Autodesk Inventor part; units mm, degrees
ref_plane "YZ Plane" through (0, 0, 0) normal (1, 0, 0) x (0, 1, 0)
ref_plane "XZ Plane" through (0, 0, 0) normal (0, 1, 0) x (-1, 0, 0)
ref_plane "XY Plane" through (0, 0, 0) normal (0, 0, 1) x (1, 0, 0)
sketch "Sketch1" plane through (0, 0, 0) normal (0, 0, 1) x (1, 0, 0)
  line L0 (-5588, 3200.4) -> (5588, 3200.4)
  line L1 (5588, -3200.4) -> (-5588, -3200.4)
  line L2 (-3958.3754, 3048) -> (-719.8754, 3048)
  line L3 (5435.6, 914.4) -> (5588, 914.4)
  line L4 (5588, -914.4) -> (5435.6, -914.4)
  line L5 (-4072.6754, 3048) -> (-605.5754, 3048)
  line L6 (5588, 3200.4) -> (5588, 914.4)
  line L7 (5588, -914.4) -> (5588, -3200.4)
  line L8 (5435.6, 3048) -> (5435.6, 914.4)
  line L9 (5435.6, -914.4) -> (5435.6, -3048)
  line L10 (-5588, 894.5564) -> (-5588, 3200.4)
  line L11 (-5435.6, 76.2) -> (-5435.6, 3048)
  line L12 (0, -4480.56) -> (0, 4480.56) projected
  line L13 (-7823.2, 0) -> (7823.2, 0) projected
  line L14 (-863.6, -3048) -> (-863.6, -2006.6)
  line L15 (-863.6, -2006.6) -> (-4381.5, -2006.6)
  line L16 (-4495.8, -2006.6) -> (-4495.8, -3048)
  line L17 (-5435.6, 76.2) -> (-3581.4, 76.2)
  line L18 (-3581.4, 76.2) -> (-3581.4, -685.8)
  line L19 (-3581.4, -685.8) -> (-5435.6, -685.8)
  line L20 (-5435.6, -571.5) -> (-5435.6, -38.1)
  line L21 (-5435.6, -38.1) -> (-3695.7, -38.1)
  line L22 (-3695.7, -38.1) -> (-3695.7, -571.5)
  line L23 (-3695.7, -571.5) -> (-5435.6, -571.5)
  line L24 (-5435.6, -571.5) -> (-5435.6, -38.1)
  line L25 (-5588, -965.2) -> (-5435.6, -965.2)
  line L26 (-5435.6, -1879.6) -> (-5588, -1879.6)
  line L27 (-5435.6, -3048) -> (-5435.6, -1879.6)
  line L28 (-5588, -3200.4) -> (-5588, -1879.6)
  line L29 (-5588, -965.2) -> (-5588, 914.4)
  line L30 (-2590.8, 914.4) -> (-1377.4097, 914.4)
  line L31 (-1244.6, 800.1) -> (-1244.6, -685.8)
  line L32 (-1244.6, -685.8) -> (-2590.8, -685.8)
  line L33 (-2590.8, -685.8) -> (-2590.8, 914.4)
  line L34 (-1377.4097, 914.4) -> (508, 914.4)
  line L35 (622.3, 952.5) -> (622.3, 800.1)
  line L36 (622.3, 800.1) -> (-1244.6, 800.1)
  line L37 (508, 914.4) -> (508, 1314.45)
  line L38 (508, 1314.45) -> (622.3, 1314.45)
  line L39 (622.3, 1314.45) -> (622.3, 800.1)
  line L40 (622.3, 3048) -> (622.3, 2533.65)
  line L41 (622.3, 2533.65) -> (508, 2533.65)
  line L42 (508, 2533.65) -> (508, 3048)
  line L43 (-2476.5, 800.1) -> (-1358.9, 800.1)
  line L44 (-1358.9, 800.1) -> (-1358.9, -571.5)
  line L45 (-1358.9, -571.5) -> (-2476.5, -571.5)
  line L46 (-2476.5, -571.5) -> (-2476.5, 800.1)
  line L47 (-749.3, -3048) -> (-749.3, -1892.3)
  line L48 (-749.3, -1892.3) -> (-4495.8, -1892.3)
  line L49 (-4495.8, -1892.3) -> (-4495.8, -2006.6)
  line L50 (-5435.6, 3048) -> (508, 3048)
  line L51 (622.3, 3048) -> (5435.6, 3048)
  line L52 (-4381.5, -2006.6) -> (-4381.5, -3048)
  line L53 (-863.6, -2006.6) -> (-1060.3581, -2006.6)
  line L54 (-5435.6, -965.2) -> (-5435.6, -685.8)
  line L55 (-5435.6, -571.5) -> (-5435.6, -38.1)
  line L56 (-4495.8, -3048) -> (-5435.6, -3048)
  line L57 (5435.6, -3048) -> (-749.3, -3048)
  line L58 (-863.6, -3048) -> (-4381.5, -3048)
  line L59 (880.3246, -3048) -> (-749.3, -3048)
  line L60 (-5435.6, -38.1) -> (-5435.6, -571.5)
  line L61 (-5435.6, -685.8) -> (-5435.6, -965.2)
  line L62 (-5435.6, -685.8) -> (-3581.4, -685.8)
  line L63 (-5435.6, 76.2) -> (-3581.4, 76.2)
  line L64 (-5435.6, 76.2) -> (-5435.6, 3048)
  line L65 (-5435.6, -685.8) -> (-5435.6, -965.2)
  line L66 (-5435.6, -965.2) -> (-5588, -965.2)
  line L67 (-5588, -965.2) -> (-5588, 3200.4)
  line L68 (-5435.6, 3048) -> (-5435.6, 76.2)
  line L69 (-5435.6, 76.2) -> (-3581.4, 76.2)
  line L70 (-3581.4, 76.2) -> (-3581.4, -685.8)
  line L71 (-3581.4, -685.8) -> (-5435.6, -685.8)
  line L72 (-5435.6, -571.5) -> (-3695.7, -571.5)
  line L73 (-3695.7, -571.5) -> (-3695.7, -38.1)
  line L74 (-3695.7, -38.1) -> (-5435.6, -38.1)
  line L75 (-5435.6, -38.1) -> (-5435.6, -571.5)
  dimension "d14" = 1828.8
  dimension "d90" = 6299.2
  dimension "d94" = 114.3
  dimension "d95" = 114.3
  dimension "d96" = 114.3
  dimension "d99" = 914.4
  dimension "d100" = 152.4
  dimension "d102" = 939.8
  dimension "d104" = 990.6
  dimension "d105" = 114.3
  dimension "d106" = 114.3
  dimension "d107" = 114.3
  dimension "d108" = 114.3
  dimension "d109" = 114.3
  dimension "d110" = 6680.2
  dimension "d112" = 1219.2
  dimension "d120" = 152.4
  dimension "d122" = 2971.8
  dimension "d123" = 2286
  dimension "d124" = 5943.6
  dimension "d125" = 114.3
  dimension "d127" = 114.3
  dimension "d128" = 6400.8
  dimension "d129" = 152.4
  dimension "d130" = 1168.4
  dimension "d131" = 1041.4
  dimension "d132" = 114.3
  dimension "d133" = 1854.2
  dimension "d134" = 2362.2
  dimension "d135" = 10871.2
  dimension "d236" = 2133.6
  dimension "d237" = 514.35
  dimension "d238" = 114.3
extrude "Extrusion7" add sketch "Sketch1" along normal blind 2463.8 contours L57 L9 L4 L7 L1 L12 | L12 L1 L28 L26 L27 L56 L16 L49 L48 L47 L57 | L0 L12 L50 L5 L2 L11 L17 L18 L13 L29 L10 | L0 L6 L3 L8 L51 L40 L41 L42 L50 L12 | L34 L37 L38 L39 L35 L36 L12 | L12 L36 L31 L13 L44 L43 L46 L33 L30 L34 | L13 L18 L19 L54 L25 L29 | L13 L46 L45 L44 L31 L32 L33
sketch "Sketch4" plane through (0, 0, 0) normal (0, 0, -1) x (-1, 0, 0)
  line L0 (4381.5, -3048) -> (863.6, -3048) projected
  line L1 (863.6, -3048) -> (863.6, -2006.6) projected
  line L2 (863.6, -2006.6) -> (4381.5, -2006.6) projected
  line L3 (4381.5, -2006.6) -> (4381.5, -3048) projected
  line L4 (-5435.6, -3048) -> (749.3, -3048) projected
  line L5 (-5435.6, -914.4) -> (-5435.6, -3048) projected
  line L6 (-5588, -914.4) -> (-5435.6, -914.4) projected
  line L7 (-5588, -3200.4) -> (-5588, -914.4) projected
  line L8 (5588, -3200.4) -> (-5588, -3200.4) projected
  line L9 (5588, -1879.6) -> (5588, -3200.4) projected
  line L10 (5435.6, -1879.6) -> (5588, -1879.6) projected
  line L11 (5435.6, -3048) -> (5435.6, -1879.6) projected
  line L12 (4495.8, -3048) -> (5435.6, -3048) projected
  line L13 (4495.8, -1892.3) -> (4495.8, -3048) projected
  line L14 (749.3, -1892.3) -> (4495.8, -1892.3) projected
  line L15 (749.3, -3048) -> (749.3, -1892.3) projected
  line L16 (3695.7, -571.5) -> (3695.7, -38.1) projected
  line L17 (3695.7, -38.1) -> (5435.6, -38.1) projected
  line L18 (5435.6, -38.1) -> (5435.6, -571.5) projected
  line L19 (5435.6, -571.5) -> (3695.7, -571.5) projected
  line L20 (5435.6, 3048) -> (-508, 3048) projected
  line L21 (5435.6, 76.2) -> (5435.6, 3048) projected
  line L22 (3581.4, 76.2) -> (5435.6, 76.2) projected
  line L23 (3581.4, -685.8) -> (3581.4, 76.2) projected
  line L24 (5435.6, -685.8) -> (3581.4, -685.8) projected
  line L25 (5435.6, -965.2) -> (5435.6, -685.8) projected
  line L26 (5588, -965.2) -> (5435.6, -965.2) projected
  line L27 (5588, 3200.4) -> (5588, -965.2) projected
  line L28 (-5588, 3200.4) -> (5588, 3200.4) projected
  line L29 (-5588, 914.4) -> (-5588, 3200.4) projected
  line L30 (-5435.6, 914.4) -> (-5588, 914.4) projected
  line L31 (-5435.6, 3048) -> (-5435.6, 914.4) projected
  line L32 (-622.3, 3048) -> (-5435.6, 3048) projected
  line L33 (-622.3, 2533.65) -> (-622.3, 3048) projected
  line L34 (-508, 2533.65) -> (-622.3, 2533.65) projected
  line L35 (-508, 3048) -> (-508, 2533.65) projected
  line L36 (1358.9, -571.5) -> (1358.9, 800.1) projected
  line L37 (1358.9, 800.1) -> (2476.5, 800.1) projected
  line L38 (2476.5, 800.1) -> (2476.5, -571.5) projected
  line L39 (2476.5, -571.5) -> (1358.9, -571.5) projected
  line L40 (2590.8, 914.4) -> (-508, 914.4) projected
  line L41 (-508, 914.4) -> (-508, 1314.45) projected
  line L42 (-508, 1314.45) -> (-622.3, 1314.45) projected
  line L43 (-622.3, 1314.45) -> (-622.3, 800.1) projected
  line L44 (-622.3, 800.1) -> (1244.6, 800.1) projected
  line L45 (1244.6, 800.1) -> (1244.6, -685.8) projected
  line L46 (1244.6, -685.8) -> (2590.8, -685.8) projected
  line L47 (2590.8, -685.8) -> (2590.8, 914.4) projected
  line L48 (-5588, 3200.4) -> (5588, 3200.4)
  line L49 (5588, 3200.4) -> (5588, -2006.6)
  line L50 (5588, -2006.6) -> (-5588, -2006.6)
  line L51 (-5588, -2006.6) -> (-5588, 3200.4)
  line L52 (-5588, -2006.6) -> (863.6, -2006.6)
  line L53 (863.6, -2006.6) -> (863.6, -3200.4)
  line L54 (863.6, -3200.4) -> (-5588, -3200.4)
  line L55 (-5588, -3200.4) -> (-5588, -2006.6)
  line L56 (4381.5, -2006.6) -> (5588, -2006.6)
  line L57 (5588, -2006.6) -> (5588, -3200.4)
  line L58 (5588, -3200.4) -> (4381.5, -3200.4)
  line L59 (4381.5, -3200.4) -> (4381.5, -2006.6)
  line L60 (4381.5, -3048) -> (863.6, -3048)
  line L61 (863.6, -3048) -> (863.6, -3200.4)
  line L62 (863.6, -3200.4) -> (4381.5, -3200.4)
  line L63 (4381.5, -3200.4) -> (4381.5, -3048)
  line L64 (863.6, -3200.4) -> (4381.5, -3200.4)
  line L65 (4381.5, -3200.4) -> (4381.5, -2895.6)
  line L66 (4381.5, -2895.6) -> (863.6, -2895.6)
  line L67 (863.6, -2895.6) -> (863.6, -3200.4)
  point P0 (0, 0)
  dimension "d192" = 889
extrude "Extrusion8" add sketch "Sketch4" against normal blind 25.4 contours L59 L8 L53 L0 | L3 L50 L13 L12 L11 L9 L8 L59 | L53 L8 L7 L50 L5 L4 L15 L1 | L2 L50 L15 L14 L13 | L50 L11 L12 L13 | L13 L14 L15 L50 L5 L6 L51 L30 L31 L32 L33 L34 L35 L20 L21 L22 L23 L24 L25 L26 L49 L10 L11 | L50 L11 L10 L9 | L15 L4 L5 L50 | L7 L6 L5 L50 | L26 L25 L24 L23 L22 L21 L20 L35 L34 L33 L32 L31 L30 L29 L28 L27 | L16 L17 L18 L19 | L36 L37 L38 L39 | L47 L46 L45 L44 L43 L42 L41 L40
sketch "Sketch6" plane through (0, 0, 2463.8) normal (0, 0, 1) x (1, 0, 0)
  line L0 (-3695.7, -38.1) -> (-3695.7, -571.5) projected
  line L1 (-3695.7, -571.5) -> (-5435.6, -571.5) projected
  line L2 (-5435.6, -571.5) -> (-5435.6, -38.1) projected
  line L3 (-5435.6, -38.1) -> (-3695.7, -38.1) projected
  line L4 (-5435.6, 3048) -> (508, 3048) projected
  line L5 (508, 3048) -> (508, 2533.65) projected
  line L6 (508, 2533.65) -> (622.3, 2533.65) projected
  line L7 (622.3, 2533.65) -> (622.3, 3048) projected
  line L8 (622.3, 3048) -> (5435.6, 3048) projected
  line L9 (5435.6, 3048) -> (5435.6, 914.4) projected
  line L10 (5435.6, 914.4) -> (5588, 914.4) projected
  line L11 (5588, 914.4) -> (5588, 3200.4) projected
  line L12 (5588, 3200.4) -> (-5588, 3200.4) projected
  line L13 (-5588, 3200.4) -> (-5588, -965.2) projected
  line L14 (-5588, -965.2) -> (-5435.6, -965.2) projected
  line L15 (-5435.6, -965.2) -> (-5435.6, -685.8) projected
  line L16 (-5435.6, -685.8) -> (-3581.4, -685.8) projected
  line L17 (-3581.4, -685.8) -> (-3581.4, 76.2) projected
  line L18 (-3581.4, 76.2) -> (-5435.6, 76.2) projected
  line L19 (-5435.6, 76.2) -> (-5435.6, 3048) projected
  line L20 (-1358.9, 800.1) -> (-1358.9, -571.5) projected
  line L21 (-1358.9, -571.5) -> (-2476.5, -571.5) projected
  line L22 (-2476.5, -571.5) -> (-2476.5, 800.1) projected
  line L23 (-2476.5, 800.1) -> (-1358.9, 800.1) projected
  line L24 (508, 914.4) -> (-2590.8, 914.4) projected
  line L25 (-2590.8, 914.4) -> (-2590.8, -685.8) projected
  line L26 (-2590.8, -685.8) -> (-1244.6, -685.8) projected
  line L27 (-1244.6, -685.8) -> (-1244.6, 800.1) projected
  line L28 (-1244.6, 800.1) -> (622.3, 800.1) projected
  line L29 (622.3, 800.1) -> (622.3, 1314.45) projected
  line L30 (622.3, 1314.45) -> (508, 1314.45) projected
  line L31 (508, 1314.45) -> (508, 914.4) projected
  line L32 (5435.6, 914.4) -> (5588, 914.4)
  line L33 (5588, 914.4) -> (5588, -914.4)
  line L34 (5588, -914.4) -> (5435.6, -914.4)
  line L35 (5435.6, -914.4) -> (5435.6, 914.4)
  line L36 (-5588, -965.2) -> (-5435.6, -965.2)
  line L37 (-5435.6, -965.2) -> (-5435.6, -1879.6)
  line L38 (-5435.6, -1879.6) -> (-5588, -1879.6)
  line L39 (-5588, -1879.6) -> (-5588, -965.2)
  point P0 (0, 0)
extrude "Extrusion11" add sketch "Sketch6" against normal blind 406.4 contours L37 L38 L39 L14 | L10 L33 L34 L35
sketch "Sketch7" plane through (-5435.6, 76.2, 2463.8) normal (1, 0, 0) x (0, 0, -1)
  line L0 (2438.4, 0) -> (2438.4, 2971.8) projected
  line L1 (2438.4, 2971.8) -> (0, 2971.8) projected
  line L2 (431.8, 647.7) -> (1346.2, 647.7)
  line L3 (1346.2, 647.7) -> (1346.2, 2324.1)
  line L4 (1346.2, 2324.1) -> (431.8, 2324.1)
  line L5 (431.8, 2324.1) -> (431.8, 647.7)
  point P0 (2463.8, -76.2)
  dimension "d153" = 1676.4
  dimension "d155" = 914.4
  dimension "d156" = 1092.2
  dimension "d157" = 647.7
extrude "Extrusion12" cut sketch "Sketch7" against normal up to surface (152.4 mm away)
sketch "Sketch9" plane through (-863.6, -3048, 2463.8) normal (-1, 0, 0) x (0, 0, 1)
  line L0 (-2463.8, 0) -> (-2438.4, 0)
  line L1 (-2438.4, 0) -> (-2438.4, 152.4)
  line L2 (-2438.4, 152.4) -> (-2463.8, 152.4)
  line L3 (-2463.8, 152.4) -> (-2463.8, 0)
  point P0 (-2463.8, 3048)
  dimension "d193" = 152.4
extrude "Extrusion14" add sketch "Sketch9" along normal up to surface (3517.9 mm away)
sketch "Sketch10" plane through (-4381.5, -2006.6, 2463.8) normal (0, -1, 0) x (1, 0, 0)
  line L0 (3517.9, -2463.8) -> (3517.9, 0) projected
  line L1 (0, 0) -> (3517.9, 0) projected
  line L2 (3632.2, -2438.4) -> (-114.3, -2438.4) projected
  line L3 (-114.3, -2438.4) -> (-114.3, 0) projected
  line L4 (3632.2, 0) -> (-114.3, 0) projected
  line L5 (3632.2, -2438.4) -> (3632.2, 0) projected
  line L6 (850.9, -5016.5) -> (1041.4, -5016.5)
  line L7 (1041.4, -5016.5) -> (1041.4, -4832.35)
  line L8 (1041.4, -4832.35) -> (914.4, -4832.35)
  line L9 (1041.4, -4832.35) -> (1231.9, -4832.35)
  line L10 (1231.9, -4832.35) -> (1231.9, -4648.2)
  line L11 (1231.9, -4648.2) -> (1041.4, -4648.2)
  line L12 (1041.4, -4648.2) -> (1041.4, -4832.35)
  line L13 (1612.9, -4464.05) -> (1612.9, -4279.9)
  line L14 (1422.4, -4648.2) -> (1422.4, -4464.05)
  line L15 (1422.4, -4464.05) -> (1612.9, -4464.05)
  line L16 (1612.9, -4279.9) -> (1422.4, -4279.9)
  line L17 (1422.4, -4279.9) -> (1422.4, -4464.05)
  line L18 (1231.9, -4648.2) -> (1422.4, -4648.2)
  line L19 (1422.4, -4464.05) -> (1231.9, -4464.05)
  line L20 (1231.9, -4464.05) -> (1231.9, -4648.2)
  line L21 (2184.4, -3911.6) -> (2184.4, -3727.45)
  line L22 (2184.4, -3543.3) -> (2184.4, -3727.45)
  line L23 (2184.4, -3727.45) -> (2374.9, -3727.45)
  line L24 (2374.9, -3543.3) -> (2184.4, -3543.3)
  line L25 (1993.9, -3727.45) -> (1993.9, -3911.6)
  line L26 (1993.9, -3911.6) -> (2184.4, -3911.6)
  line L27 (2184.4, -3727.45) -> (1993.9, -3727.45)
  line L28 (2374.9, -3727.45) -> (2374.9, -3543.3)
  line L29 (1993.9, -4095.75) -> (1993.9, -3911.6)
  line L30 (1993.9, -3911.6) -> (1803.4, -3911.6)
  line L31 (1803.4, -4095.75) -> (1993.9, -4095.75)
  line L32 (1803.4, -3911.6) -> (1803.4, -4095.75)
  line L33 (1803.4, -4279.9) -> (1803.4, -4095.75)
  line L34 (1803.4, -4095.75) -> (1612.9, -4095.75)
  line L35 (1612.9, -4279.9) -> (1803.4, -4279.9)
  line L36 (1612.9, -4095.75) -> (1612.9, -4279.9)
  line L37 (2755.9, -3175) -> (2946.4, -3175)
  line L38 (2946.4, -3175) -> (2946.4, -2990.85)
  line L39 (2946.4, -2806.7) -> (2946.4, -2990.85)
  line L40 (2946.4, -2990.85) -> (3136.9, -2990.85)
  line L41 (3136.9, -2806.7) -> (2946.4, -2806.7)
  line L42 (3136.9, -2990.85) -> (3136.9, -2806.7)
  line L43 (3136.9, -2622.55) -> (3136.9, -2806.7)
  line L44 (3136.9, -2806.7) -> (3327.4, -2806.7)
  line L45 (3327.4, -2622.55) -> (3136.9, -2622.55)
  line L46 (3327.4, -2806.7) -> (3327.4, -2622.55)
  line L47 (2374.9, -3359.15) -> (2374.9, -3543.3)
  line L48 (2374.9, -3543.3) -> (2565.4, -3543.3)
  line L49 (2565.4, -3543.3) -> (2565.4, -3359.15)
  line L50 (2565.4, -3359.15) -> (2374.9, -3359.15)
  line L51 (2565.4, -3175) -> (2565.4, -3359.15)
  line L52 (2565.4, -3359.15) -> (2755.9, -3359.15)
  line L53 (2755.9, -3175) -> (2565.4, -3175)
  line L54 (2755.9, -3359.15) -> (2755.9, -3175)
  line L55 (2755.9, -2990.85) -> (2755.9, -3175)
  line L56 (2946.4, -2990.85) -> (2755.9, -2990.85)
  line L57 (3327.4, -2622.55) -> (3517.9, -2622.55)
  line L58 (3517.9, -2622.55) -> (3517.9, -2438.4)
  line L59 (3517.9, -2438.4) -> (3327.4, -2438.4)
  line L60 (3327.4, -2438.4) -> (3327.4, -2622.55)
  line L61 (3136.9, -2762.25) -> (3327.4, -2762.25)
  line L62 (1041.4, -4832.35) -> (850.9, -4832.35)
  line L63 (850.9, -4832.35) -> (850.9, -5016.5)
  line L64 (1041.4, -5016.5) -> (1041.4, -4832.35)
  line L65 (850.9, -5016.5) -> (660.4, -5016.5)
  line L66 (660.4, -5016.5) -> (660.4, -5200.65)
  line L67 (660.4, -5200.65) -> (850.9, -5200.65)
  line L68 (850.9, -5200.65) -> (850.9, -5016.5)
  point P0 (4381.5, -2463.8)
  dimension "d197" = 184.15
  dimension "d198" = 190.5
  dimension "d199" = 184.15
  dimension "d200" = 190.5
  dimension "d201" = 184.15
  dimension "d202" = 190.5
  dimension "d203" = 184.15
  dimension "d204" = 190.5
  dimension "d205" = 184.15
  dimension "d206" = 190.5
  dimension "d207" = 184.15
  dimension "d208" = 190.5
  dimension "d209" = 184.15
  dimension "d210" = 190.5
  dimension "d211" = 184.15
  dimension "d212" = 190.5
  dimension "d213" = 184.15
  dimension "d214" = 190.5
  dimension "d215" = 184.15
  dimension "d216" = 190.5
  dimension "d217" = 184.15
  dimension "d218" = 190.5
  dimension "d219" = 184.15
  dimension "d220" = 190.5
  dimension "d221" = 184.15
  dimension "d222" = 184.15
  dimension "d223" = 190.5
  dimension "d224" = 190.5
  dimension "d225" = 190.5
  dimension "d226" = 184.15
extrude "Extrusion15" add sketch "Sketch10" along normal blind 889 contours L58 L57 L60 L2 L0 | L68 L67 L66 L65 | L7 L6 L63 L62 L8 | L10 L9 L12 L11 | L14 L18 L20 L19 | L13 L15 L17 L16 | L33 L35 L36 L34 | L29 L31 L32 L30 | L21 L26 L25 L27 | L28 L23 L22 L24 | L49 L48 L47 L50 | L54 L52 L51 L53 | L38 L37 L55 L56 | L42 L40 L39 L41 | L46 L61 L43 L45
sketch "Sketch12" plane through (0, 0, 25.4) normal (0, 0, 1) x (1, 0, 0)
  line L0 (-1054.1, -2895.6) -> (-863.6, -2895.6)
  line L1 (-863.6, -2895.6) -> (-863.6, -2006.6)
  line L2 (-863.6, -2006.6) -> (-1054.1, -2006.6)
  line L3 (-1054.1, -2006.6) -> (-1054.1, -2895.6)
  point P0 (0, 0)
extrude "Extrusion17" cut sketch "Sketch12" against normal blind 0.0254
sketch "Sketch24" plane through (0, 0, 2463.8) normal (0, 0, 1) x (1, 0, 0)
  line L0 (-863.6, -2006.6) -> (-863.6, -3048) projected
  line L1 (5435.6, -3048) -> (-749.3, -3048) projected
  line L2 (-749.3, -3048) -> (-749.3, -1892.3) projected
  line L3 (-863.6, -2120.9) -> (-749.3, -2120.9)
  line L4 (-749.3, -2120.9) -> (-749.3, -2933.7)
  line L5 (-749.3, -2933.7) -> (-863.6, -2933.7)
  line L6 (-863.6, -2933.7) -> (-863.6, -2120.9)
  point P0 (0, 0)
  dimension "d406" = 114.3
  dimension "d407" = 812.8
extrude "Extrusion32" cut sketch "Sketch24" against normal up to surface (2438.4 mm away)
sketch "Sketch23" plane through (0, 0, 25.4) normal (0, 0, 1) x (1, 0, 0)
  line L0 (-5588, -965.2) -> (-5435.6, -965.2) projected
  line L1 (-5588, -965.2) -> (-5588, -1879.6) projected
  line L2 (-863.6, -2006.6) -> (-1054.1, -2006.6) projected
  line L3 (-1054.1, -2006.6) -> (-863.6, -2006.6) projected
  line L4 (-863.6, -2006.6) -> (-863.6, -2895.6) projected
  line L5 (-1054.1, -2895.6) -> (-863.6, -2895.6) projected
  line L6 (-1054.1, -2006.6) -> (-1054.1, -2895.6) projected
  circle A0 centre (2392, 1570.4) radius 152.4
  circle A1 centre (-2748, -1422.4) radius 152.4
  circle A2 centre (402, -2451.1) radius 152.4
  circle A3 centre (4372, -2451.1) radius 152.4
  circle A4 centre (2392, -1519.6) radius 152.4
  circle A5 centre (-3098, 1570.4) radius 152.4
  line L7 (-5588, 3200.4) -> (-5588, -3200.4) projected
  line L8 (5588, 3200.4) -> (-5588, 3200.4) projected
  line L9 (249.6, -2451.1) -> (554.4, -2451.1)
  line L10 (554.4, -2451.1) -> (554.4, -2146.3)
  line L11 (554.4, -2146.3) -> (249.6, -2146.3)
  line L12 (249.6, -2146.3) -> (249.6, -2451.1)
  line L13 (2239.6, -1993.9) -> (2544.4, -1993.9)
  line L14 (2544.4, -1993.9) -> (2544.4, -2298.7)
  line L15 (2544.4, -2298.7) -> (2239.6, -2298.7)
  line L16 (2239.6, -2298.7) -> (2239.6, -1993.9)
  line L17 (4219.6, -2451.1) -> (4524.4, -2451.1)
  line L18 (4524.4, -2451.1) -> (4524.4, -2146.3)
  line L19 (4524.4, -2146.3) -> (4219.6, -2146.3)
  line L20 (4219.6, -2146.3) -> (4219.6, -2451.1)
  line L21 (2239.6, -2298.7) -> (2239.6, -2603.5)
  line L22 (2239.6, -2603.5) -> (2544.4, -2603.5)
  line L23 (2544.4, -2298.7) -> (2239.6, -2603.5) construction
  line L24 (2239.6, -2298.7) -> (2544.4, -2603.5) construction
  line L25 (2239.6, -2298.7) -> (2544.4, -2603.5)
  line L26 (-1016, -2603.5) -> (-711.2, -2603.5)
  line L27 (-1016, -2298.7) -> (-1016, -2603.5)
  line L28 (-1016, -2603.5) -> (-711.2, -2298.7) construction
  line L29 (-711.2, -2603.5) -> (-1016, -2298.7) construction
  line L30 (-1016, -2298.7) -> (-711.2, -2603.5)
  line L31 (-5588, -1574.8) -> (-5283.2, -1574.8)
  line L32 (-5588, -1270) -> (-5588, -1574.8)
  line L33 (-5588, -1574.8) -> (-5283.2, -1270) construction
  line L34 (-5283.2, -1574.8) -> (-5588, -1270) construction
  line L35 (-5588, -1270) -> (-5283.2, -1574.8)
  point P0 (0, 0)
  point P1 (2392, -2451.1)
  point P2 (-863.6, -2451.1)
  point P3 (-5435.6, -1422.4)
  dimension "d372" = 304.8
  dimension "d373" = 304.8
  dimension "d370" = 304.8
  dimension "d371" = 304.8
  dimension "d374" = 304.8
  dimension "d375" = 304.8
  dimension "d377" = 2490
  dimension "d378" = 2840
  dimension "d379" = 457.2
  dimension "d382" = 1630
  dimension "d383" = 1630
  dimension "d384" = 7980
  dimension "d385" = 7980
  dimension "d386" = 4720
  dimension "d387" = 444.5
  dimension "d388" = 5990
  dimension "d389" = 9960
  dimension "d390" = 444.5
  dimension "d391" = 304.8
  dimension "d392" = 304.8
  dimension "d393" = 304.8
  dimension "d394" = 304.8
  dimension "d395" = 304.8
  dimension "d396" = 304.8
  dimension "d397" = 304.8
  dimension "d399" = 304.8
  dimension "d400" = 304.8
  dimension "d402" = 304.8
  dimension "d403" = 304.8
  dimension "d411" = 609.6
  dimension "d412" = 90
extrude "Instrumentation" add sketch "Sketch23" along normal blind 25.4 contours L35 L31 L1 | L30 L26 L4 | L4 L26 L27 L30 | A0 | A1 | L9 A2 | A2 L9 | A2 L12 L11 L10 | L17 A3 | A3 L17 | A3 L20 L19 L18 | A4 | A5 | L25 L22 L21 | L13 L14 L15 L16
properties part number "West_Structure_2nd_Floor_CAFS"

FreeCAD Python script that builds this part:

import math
import FreeCAD as App
import Part
import Sketcher
Q = App.Units.Quantity


def add_polygon(sketch, points):
    """Adds a closed chain of lines whose ends are joined by coincident constraints."""
    first, n = sketch.GeometryCount, len(points)
    for a, b in zip(points, points[1:] + points[:1]):
        sketch.addGeometry(Part.LineSegment(App.Vector(*a, 0), App.Vector(*b, 0)), False)
    for i in range(n):
        sketch.addConstraint(Sketcher.Constraint("Coincident", first + i, 2, first + (i + 1) % n, 1))

doc = App.newDocument("Part")
body = doc.addObject("PartDesign::Body", "Body")
body.AllowCompound = True

sketch1 = body.newObject("Sketcher::SketchObject", "Sketch")
sketch1.AttachmentSupport = (doc.getObject("XY_Plane"), [""])
sketch1.MapMode = "FlatFace"
add_polygon(sketch1, [(-749, -3048), (-749, -1892), (-4496, -1892), (-4496, -3048), (-5436, -3048), (-5436, -1880), (-5588, -1880), (-5588, -3200), (5588, -3200), (5588, -914), (5436, -914), (5436, -3048)])
add_polygon(sketch1, [(-864, -3048), (-4382, -3048), (-4382, -2007), (-864, -2007)])
add_polygon(sketch1, [(-5588, 3200), (-5588, -965), (-5436, -965), (-5436, -686), (-3581, -686), (-3581, 76), (-5436, 76), (-5436, 3048), (508, 3048), (508, 2534), (622, 2534), (622, 3048), (5436, 3048), (5436, 914), (5588, 914), (5588, 3200)])
add_polygon(sketch1, [(-5436, -572), (-5436, -38), (-3696, -38), (-3696, -572)])
add_polygon(sketch1, [(508, 914), (-2591, 914), (-2591, -686), (-1245, -686), (-1245, 800), (622, 800), (622, 1314), (508, 1314)])
add_polygon(sketch1, [(-1359, 800), (-1359, -572), (-2476, -572), (-2476, 800)])
sketch1.addConstraint(Sketcher.Constraint("Vertical", 0))
sketch1.addConstraint(Sketcher.Constraint("Horizontal", 1))
sketch1.addConstraint(Sketcher.Constraint("Vertical", 2))
sketch1.addConstraint(Sketcher.Constraint("Horizontal", 3))
sketch1.addConstraint(Sketcher.Constraint("Vertical", 4))
sketch1.addConstraint(Sketcher.Constraint("Horizontal", 5))
sketch1.addConstraint(Sketcher.Constraint("Vertical", 6))
sketch1.addConstraint(Sketcher.Constraint("Horizontal", 7))
sketch1.addConstraint(Sketcher.Constraint("Vertical", 8))
sketch1.addConstraint(Sketcher.Constraint("Horizontal", 9))
sketch1.addConstraint(Sketcher.Constraint("Vertical", 10))
sketch1.addConstraint(Sketcher.Constraint("Horizontal", 11))
sketch1.addConstraint(Sketcher.Constraint("Horizontal", 12))
sketch1.addConstraint(Sketcher.Constraint("Vertical", 13))
sketch1.addConstraint(Sketcher.Constraint("Horizontal", 14))
sketch1.addConstraint(Sketcher.Constraint("Vertical", 15))
sketch1.addConstraint(Sketcher.Constraint("Vertical", 16))
sketch1.addConstraint(Sketcher.Constraint("Horizontal", 17))
sketch1.addConstraint(Sketcher.Constraint("Vertical", 18))
sketch1.addConstraint(Sketcher.Constraint("Horizontal", 19))
sketch1.addConstraint(Sketcher.Constraint("Vertical", 20))
sketch1.addConstraint(Sketcher.Constraint("Horizontal", 21))
sketch1.addConstraint(Sketcher.Constraint("Vertical", 22))
sketch1.addConstraint(Sketcher.Constraint("Horizontal", 23))
sketch1.addConstraint(Sketcher.Constraint("Vertical", 24))
sketch1.addConstraint(Sketcher.Constraint("Horizontal", 25))
sketch1.addConstraint(Sketcher.Constraint("Vertical", 26))
sketch1.addConstraint(Sketcher.Constraint("Horizontal", 27))
sketch1.addConstraint(Sketcher.Constraint("Vertical", 28))
sketch1.addConstraint(Sketcher.Constraint("Horizontal", 29))
sketch1.addConstraint(Sketcher.Constraint("Vertical", 30))
sketch1.addConstraint(Sketcher.Constraint("Horizontal", 31))
sketch1.addConstraint(Sketcher.Constraint("Vertical", 32))
sketch1.addConstraint(Sketcher.Constraint("Horizontal", 33))
sketch1.addConstraint(Sketcher.Constraint("Vertical", 34))
sketch1.addConstraint(Sketcher.Constraint("Horizontal", 35))
sketch1.addConstraint(Sketcher.Constraint("Horizontal", 36))
sketch1.addConstraint(Sketcher.Constraint("Vertical", 37))
sketch1.addConstraint(Sketcher.Constraint("Horizontal", 38))
sketch1.addConstraint(Sketcher.Constraint("Vertical", 39))
sketch1.addConstraint(Sketcher.Constraint("Horizontal", 40))
sketch1.addConstraint(Sketcher.Constraint("Vertical", 41))
sketch1.addConstraint(Sketcher.Constraint("Horizontal", 42))
sketch1.addConstraint(Sketcher.Constraint("Vertical", 43))
sketch1.addConstraint(Sketcher.Constraint("Vertical", 44))
sketch1.addConstraint(Sketcher.Constraint("Horizontal", 45))
sketch1.addConstraint(Sketcher.Constraint("Vertical", 46))
sketch1.addConstraint(Sketcher.Constraint("Horizontal", 47))
sketch1.addConstraint(Sketcher.Constraint("Symmetric", 10, 2, 22, 2, -1, 1))
sketch1.addConstraint(Sketcher.Constraint("Symmetric", 3, 2, 27, 2, -1, 1))
sketch1.addConstraint(Sketcher.Constraint("Symmetric", 6, 2, 30, 2, -1, 1))
sketch1.addConstraint(Sketcher.Constraint("Symmetric", 3, 2, 10, 2, -2))
sketch1.addConstraint(Sketcher.Constraint("Symmetric", 8, 2, 29, 2, -1))
sketch1.addConstraint(Sketcher.Constraint("Horizontal", 11, 2, 12, 2))
sketch1.addConstraint(Sketcher.Constraint("Horizontal", 29, 2, 36, 2))
sketch1.addConstraint(Sketcher.Constraint("Horizontal", 19, 2, 37, 2))
sketch1.addConstraint(Sketcher.Constraint("Horizontal", 35, 2, 44, 2))
sketch1.addConstraint(Sketcher.Constraint("Horizontal", 40, 2, 46, 2))
sketch1.addConstraint(Sketcher.Constraint("Vertical", 6, 2, 16, 2))
sketch1.addConstraint(Sketcher.Constraint("Vertical", 4, 2, 17, 2))
sketch1.addConstraint(Sketcher.Constraint("Vertical", 22, 2, 32, 2))
sketch1.addConstraint(Sketcher.Constraint("Vertical", 26, 2, 40, 2))
sketch1.addConstraint(Sketcher.Constraint("Vertical", 24, 2, 42, 2))
sketch1.addConstraint(Sketcher.Constraint("Equal", 26, 41))
sketch1.addConstraint(Sketcher.Constraint("DistanceX", 3, 2, 3, 1, Q("37 in")))
sketch1.addConstraint(Sketcher.Constraint("DistanceX", 5, 2, 5, 1, Q("6 in")))
sketch1.addConstraint(Sketcher.Constraint("DistanceX", 19, 1, 19, 2, Q("73 in")))
sketch1.addConstraint(Sketcher.Constraint("DistanceX", 23, 1, 23, 2, Q("234 in")))
sketch1.addConstraint(Sketcher.Constraint("DistanceY", 4, 1, 4, 2, Q("46 in")))
sketch1.addConstraint(Sketcher.Constraint("DistanceY", 8, 1, 8, 2, Q("90 in")))
sketch1.addConstraint(Sketcher.Constraint("DistanceY", 10, 2, 10, 1, Q("84 in")))
sketch1.addConstraint(Sketcher.Constraint("DistanceY", 13, 1, 13, 2, Q("41 in")))
sketch1.addConstraint(Sketcher.Constraint("DistanceY", 22, 1, 22, 2, Q("117 in")))
sketch1.addConstraint(Sketcher.Constraint("DistanceX", 25, 1, 25, 2, Q("4.5 in")))
sketch1.addConstraint(Sketcher.Constraint("DistanceY", 8, 2, -1, 1, Q("36 in")))
sketch1.addConstraint(Sketcher.Constraint("DistanceY", 5, 2, 16, 2, Q("36 in")))
sketch1.addConstraint(Sketcher.Constraint("DistanceX", 20, 2, 36, 2, Q("39 in")))
sketch1.addConstraint(Sketcher.Constraint("DistanceY", 41, 2, 25, 2, Q("48 in")))
sketch1.addConstraint(Sketcher.Constraint("DistanceX", 34, 2, 45, 2, Q("48 in")))
sketch1.addConstraint(Sketcher.Constraint("DistanceY", 24, 2, 24, 1, Q("20.25 in")))
sketch1.addConstraint(Sketcher.Constraint("DistanceX", 2, 2, 12, 2, Q("4.5 in")))
sketch1.addConstraint(Sketcher.Constraint("DistanceY", 13, 2, 1, 2, Q("4.5 in")))
sketch1.addConstraint(Sketcher.Constraint("DistanceX", 14, 2, 0, 2, Q("4.5 in")))
sketch1.addConstraint(Sketcher.Constraint("DistanceY", 32, 2, 21, 2, Q("4.5 in")))
sketch1.addConstraint(Sketcher.Constraint("DistanceX", 33, 2, 20, 2, Q("4.5 in")))
sketch1.addConstraint(Sketcher.Constraint("DistanceY", 19, 2, 34, 2, Q("4.5 in")))
sketch1.addConstraint(Sketcher.Constraint("DistanceX", 44, 2, 38, 2, Q("4.5 in")))
sketch1.addConstraint(Sketcher.Constraint("DistanceX", 7, 1, 7, 2, Q("440 in")))
sketch1.addConstraint(Sketcher.Constraint("DistanceX", 38, 1, 38, 2, Q("53 in")))
sketch1.addConstraint(Sketcher.Constraint("DistanceY", 18, 1, 18, 2, Q("11 in")))
sketch1.addConstraint(Sketcher.Constraint("DistanceX", 1, 2, 1, 1, Q("147.5 in")))
pad1 = body.newObject("PartDesign::Pad", "Pad")
pad1.Profile = sketch1
pad1.Length = Q("97 in")

sketch2 = body.newObject("Sketcher::SketchObject", "Sketch001")
sketch2.AttachmentSupport = (doc.getObject("XY_Plane"), [""])
sketch2.MapMode = "FlatFace"
add_polygon(sketch2, [(-5588, -3200), (-5588, 3200), (5588, 3200), (5588, -3200)])
add_polygon(sketch2, [(-4382, -3048), (-864, -3048), (-864, -2007), (-4382, -2007)])
sketch2.addConstraint(Sketcher.Constraint("Vertical", 0))
sketch2.addConstraint(Sketcher.Constraint("Horizontal", 1))
sketch2.addConstraint(Sketcher.Constraint("Vertical", 2))
sketch2.addConstraint(Sketcher.Constraint("Horizontal", 3))
sketch2.addConstraint(Sketcher.Constraint("Horizontal", 4))
sketch2.addConstraint(Sketcher.Constraint("Vertical", 5))
sketch2.addConstraint(Sketcher.Constraint("Horizontal", 6))
sketch2.addConstraint(Sketcher.Constraint("Vertical", 7))
sketch2.addConstraint(Sketcher.Constraint("Symmetric", 0, 2, 2, 2, -1, 1))
sketch2.addConstraint(Sketcher.Constraint("DistanceX", 1, 1, 1, 2, Q("440 in")))
sketch2.addConstraint(Sketcher.Constraint("DistanceY", 0, 1, 0, 2, Q("252 in")))
sketch2.addConstraint(Sketcher.Constraint("DistanceY", 5, 1, 5, 2, Q("41 in")))
sketch2.addConstraint(Sketcher.Constraint("DistanceX", 4, 1, 4, 2, Q("138.5 in")))
sketch2.addConstraint(Sketcher.Constraint("DistanceX", 4, 2, -1, 1, Q("34 in")))
sketch2.addConstraint(Sketcher.Constraint("DistanceY", 4, 2, -1, 1, Q("120 in")))
pad2 = body.newObject("PartDesign::Pad", "Pad001")
pad2.Profile = sketch2
pad2.Length = Q("1 in")

sketch3 = body.newObject("Sketcher::SketchObject", "Sketch002")
sketch3.AttachmentSupport = (doc.getObject("XY_Plane"), [""])
sketch3.MapMode = "FlatFace"
sketch3.AttachmentOffset = App.Placement(App.Vector(0, 0, 97 * 25.4), App.Rotation())
add_polygon(sketch3, [(-5436, -1880), (-5436, -965), (-5588, -965), (-5588, -1880)])
add_polygon(sketch3, [(5588, 914), (5436, 914), (5436, -914), (5588, -914)])
sketch3.addConstraint(Sketcher.Constraint("Vertical", 0))
sketch3.addConstraint(Sketcher.Constraint("Horizontal", 1))
sketch3.addConstraint(Sketcher.Constraint("Vertical", 2))
sketch3.addConstraint(Sketcher.Constraint("Horizontal", 3))
sketch3.addConstraint(Sketcher.Constraint("Horizontal", 4))
sketch3.addConstraint(Sketcher.Constraint("Vertical", 5))
sketch3.addConstraint(Sketcher.Constraint("Horizontal", 6))
sketch3.addConstraint(Sketcher.Constraint("Vertical", 7))
sketch3.addConstraint(Sketcher.Constraint("Equal", 3, 4))
sketch3.addConstraint(Sketcher.Constraint("DistanceX", 1, 2, 1, 1, Q("6 in")))
sketch3.addConstraint(Sketcher.Constraint("DistanceY", 0, 1, 0, 2, Q("36 in")))
sketch3.addConstraint(Sketcher.Constraint("DistanceY", 5, 2, 5, 1, Q("72 in")))
sketch3.addConstraint(Sketcher.Constraint("DistanceX", 0, 2, -1, 1, Q("214 in")))
sketch3.addConstraint(Sketcher.Constraint("DistanceY", 0, 2, -1, 1, Q("38 in")))
sketch3.addConstraint(Sketcher.Constraint("DistanceX", -1, 1, 4, 2, Q("214 in")))
sketch3.addConstraint(Sketcher.Constraint("DistanceY", -1, 1, 4, 2, Q("36 in")))
pad3 = body.newObject("PartDesign::Pad", "Pad002")
pad3.Profile = sketch3
pad3.Length = Q("16 in")
pad3.Reversed = True

sketch4 = body.newObject("Sketcher::SketchObject", "Sketch003")
sketch4.AttachmentSupport = (doc.getObject("YZ_Plane"), [""])
sketch4.MapMode = "FlatFace"
sketch4.AttachmentOffset = App.Placement(App.Vector(0, 0, -214 * 25.4), App.Rotation())
add_polygon(sketch4, [(2400, 2032), (724, 2032), (724, 1118), (2400, 1118)])
sketch4.addConstraint(Sketcher.Constraint("Horizontal", 0))
sketch4.addConstraint(Sketcher.Constraint("Vertical", 1))
sketch4.addConstraint(Sketcher.Constraint("Horizontal", 2))
sketch4.addConstraint(Sketcher.Constraint("Vertical", 3))
sketch4.addConstraint(Sketcher.Constraint("DistanceX", 0, 2, 0, 1, Q("66 in")))
sketch4.addConstraint(Sketcher.Constraint("DistanceY", 1, 2, 1, 1, Q("36 in")))
sketch4.addConstraint(Sketcher.Constraint("DistanceY", -1, 1, 0, 2, Q("80 in")))
sketch4.addConstraint(Sketcher.Constraint("DistanceX", -1, 1, 0, 2, Q("28.5 in")))
pocket1 = body.newObject("PartDesign::Pocket", "Pocket")
pocket1.Profile = sketch4
pocket1.Length = Q("6 in")

sketch5 = body.newObject("Sketcher::SketchObject", "Sketch004")
sketch5.AttachmentSupport = (doc.getObject("YZ_Plane"), [""])
sketch5.MapMode = "FlatFace"
sketch5.AttachmentOffset = App.Placement(App.Vector(0, 0, -34 * 25.4), App.Rotation())
add_polygon(sketch5, [(-2896, 0), (-3048, 0), (-3048, 25), (-2896, 25)])
sketch5.addConstraint(Sketcher.Constraint("Horizontal", 0))
sketch5.addConstraint(Sketcher.Constraint("Vertical", 1))
sketch5.addConstraint(Sketcher.Constraint("Horizontal", 2))
sketch5.addConstraint(Sketcher.Constraint("Vertical", 3))
sketch5.addConstraint(Sketcher.Constraint("PointOnObject", 0, 2, -1))
sketch5.addConstraint(Sketcher.Constraint("DistanceX", 0, 2, 0, 1, Q("6 in")))
sketch5.addConstraint(Sketcher.Constraint("DistanceY", 1, 1, 1, 2, Q("1 in")))
sketch5.addConstraint(Sketcher.Constraint("DistanceX", 0, 2, -1, 1, Q("120 in")))
pad4 = body.newObject("PartDesign::Pad", "Pad003")
pad4.Profile = sketch5
pad4.Length = Q("138.5 in")
pad4.Reversed = True

sketch6 = body.newObject("Sketcher::SketchObject", "Sketch005")
sketch6.AttachmentSupport = (doc.getObject("XZ_Plane"), [""])
sketch6.MapMode = "FlatFace"
sketch6.AttachmentOffset = App.Placement(App.Vector(0, 0, 79 * 25.4), App.Rotation())
add_polygon(sketch6, [(-864, -159), (-864, 25), (-1054, 25), (-1054, -159)])
add_polygon(sketch6, [(-3531, -2737), (-3531, -2553), (-3721, -2553), (-3721, -2737)])
add_polygon(sketch6, [(-3340, -2553), (-3340, -2369), (-3531, -2369), (-3531, -2553)])
add_polygon(sketch6, [(-3150, -2369), (-3150, -2184), (-3340, -2184), (-3340, -2369)])
add_polygon(sketch6, [(-2959, -2184), (-2959, -2000), (-3150, -2000), (-3150, -2184)])
add_polygon(sketch6, [(-2769, -2000), (-2769, -1816), (-2959, -1816), (-2959, -2000)])
add_polygon(sketch6, [(-2578, -1816), (-2578, -1632), (-2769, -1632), (-2769, -1816)])
add_polygon(sketch6, [(-2388, -1632), (-2388, -1448), (-2578, -1448), (-2578, -1632)])
add_polygon(sketch6, [(-2197, -1448), (-2197, -1264), (-2388, -1264), (-2388, -1448)])
add_polygon(sketch6, [(-2007, -1264), (-2007, -1080), (-2197, -1080), (-2197, -1264)])
add_polygon(sketch6, [(-1816, -1080), (-1816, -895), (-2007, -895), (-2007, -1080)])
add_polygon(sketch6, [(-1626, -895), (-1626, -711), (-1816, -711), (-1816, -895)])
add_polygon(sketch6, [(-1435, -711), (-1435, -527), (-1626, -527), (-1626, -711)])
add_polygon(sketch6, [(-1245, -527), (-1245, -343), (-1435, -343), (-1435, -527)])
add_polygon(sketch6, [(-1054, -298), (-1054, -159), (-1245, -159), (-1245, -298)])
sketch6.addConstraint(Sketcher.Constraint("Vertical", 0))
sketch6.addConstraint(Sketcher.Constraint("Horizontal", 1))
sketch6.addConstraint(Sketcher.Constraint("Vertical", 2))
sketch6.addConstraint(Sketcher.Constraint("Horizontal", 3))
sketch6.addConstraint(Sketcher.Constraint("Vertical", 4))
sketch6.addConstraint(Sketcher.Constraint("Horizontal", 5))
sketch6.addConstraint(Sketcher.Constraint("Vertical", 6))
sketch6.addConstraint(Sketcher.Constraint("Horizontal", 7))
sketch6.addConstraint(Sketcher.Constraint("Vertical", 8))
sketch6.addConstraint(Sketcher.Constraint("Horizontal", 9))
sketch6.addConstraint(Sketcher.Constraint("Vertical", 10))
sketch6.addConstraint(Sketcher.Constraint("Horizontal", 11))
sketch6.addConstraint(Sketcher.Constraint("Vertical", 12))
sketch6.addConstraint(Sketcher.Constraint("Horizontal", 13))
sketch6.addConstraint(Sketcher.Constraint("Vertical", 14))
sketch6.addConstraint(Sketcher.Constraint("Horizontal", 15))
sketch6.addConstraint(Sketcher.Constraint("Vertical", 16))
sketch6.addConstraint(Sketcher.Constraint("Horizontal", 17))
sketch6.addConstraint(Sketcher.Constraint("Vertical", 18))
sketch6.addConstraint(Sketcher.Constraint("Horizontal", 19))
sketch6.addConstraint(Sketcher.Constraint("Vertical", 20))
sketch6.addConstraint(Sketcher.Constraint("Horizontal", 21))
sketch6.addConstraint(Sketcher.Constraint("Vertical", 22))
sketch6.addConstraint(Sketcher.Constraint("Horizontal", 23))
sketch6.addConstraint(Sketcher.Constraint("Vertical", 24))
sketch6.addConstraint(Sketcher.Constraint("Horizontal", 25))
sketch6.addConstraint(Sketcher.Constraint("Vertical", 26))
sketch6.addConstraint(Sketcher.Constraint("Horizontal", 27))
sketch6.addConstraint(Sketcher.Constraint("Vertical", 28))
sketch6.addConstraint(Sketcher.Constraint("Horizontal", 29))
sketch6.addConstraint(Sketcher.Constraint("Vertical", 30))
sketch6.addConstraint(Sketcher.Constraint("Horizontal", 31))
sketch6.addConstraint(Sketcher.Constraint("Vertical", 32))
sketch6.addConstraint(Sketcher.Constraint("Horizontal", 33))
sketch6.addConstraint(Sketcher.Constraint("Vertical", 34))
sketch6.addConstraint(Sketcher.Constraint("Horizontal", 35))
sketch6.addConstraint(Sketcher.Constraint("Vertical", 36))
sketch6.addConstraint(Sketcher.Constraint("Horizontal", 37))
sketch6.addConstraint(Sketcher.Constraint("Vertical", 38))
sketch6.addConstraint(Sketcher.Constraint("Horizontal", 39))
sketch6.addConstraint(Sketcher.Constraint("Vertical", 40))
sketch6.addConstraint(Sketcher.Constraint("Horizontal", 41))
sketch6.addConstraint(Sketcher.Constraint("Vertical", 42))
sketch6.addConstraint(Sketcher.Constraint("Horizontal", 43))
sketch6.addConstraint(Sketcher.Constraint("Vertical", 44))
sketch6.addConstraint(Sketcher.Constraint("Horizontal", 45))
sketch6.addConstraint(Sketcher.Constraint("Vertical", 46))
sketch6.addConstraint(Sketcher.Constraint("Horizontal", 47))
sketch6.addConstraint(Sketcher.Constraint("Vertical", 48))
sketch6.addConstraint(Sketcher.Constraint("Horizontal", 49))
sketch6.addConstraint(Sketcher.Constraint("Vertical", 50))
sketch6.addConstraint(Sketcher.Constraint("Horizontal", 51))
sketch6.addConstraint(Sketcher.Constraint("Vertical", 52))
sketch6.addConstraint(Sketcher.Constraint("Horizontal", 53))
sketch6.addConstraint(Sketcher.Constraint("Vertical", 54))
sketch6.addConstraint(Sketcher.Constraint("Horizontal", 55))
sketch6.addConstraint(Sketcher.Constraint("Vertical", 56))
sketch6.addConstraint(Sketcher.Constraint("Horizontal", 57))
sketch6.addConstraint(Sketcher.Constraint("Vertical", 58))
sketch6.addConstraint(Sketcher.Constraint("Horizontal", 59))
sketch6.addConstraint(Sketcher.Constraint("Coincident", 10, 2, 4, 2))
sketch6.addConstraint(Sketcher.Constraint("Coincident", 14, 2, 8, 2))
sketch6.addConstraint(Sketcher.Constraint("Coincident", 18, 2, 12, 2))
sketch6.addConstraint(Sketcher.Constraint("Coincident", 22, 2, 16, 2))
sketch6.addConstraint(Sketcher.Constraint("Coincident", 26, 2, 20, 2))
sketch6.addConstraint(Sketcher.Constraint("Coincident", 30, 2, 24, 2))
sketch6.addConstraint(Sketcher.Constraint("Coincident", 34, 2, 28, 2))
sketch6.addConstraint(Sketcher.Constraint("Coincident", 38, 2, 32, 2))
sketch6.addConstraint(Sketcher.Constraint("Coincident", 42, 2, 36, 2))
sketch6.addConstraint(Sketcher.Constraint("Coincident", 46, 2, 40, 2))
sketch6.addConstraint(Sketcher.Constraint("Coincident", 50, 2, 44, 2))
sketch6.addConstraint(Sketcher.Constraint("Coincident", 54, 2, 48, 2))
sketch6.addConstraint(Sketcher.Constraint("Coincident", 56, 2, 2, 2))
sketch6.addConstraint(Sketcher.Constraint("Vertical", 55, 2, 57, 2))
sketch6.addConstraint(Sketcher.Constraint("Equal", 3, 5))
sketch6.addConstraint(Sketcher.Constraint("Equal", 7, 9))
sketch6.addConstraint(Sketcher.Constraint("Equal", 11, 13))
sketch6.addConstraint(Sketcher.Constraint("Equal", 15, 17))
sketch6.addConstraint(Sketcher.Constraint("Equal", 19, 21))
sketch6.addConstraint(Sketcher.Constraint("Equal", 23, 25))
sketch6.addConstraint(Sketcher.Constraint("Equal", 27, 29))
sketch6.addConstraint(Sketcher.Constraint("Equal", 31, 33))
sketch6.addConstraint(Sketcher.Constraint("Equal", 35, 37))
sketch6.addConstraint(Sketcher.Constraint("Equal", 39, 41))
sketch6.addConstraint(Sketcher.Constraint("Equal", 43, 45))
sketch6.addConstraint(Sketcher.Constraint("Equal", 47, 49))
sketch6.addConstraint(Sketcher.Constraint("Equal", 51, 53))
sketch6.addConstraint(Sketcher.Constraint("Equal", 55, 57))
sketch6.addConstraint(Sketcher.Constraint("Equal", 2, 4))
sketch6.addConstraint(Sketcher.Constraint("Equal", 6, 8))
sketch6.addConstraint(Sketcher.Constraint("Equal", 10, 12))
sketch6.addConstraint(Sketcher.Constraint("Equal", 14, 16))
sketch6.addConstraint(Sketcher.Constraint("Equal", 18, 20))
sketch6.addConstraint(Sketcher.Constraint("Equal", 22, 24))
sketch6.addConstraint(Sketcher.Constraint("Equal", 26, 28))
sketch6.addConstraint(Sketcher.Constraint("Equal", 30, 32))
sketch6.addConstraint(Sketcher.Constraint("Equal", 34, 36))
sketch6.addConstraint(Sketcher.Constraint("Equal", 38, 40))
sketch6.addConstraint(Sketcher.Constraint("Equal", 42, 44))
sketch6.addConstraint(Sketcher.Constraint("Equal", 46, 48))
sketch6.addConstraint(Sketcher.Constraint("Equal", 50, 52))
sketch6.addConstraint(Sketcher.Constraint("DistanceX", 1, 2, 1, 1, Q("7.5 in")))
sketch6.addConstraint(Sketcher.Constraint("DistanceY", 0, 1, 0, 2, Q("7.25 in")))
sketch6.addConstraint(Sketcher.Constraint("DistanceY", 52, 2, 2, 2, Q("7.25 in")))
sketch6.addConstraint(Sketcher.Constraint("DistanceY", 56, 1, 56, 2, Q("5.5 in")))
sketch6.addConstraint(Sketcher.Constraint("DistanceX", 0, 2, -1, 1, Q("34 in")))
sketch6.addConstraint(Sketcher.Constraint("DistanceY", -1, 1, 0, 2, Q("1 in")))
pad5 = body.newObject("PartDesign::Pad", "Pad004")
pad5.Profile = sketch6
pad5.Length = Q("35 in")

sketch7 = body.newObject("Sketcher::SketchObject", "Sketch006")
sketch7.AttachmentSupport = (doc.getObject("XY_Plane"), [""])
sketch7.MapMode = "FlatFace"
sketch7.AttachmentOffset = App.Placement(App.Vector(0, 0, 1 * 25.4), App.Rotation())
add_polygon(sketch7, [(-1054, -2007), (-1054, -2896), (-864, -2896), (-864, -2007)])
sketch7.addConstraint(Sketcher.Constraint("Vertical", 0))
sketch7.addConstraint(Sketcher.Constraint("Horizontal", 1))
sketch7.addConstraint(Sketcher.Constraint("Vertical", 2))
sketch7.addConstraint(Sketcher.Constraint("Horizontal", 3))
sketch7.addConstraint(Sketcher.Constraint("DistanceY", 0, 2, 0, 1, Q("35 in")))
sketch7.addConstraint(Sketcher.Constraint("DistanceX", 1, 1, 1, 2, Q("7.5 in")))
sketch7.addConstraint(Sketcher.Constraint("DistanceY", 0, 2, -1, 1, Q("114 in")))
sketch7.addConstraint(Sketcher.Constraint("DistanceX", 1, 2, -1, 1, Q("34 in")))
pocket2 = body.newObject("PartDesign::Pocket", "Pocket001")
pocket2.Profile = sketch7
pocket2.Length = Q("0.001 in")

sketch8 = body.newObject("Sketcher::SketchObject", "Sketch007")
sketch8.AttachmentSupport = (doc.getObject("XY_Plane"), [""])
sketch8.MapMode = "FlatFace"
sketch8.AttachmentOffset = App.Placement(App.Vector(0, 0, 97 * 25.4), App.Rotation())
add_polygon(sketch8, [(-749, -2121), (-864, -2121), (-864, -2934), (-749, -2934)])
sketch8.addConstraint(Sketcher.Constraint("Horizontal", 0))
sketch8.addConstraint(Sketcher.Constraint("Vertical", 1))
sketch8.addConstraint(Sketcher.Constraint("Horizontal", 2))
sketch8.addConstraint(Sketcher.Constraint("Vertical", 3))
sketch8.addConstraint(Sketcher.Constraint("DistanceY", 1, 2, 1, 1, Q("32 in")))
sketch8.addConstraint(Sketcher.Constraint("DistanceX", 0, 2, 0, 1, Q("4.5 in")))
sketch8.addConstraint(Sketcher.Constraint("DistanceX", 0, 2, -1, 1, Q("34 in")))
sketch8.addConstraint(Sketcher.Constraint("DistanceY", 0, 2, -1, 1, Q("83.5 in")))
pocket3 = body.newObject("PartDesign::Pocket", "Pocket002")
pocket3.Profile = sketch8
pocket3.Length = Q("96 in")

sketch9 = body.newObject("Sketcher::SketchObject", "Sketch008")
sketch9.AttachmentSupport = (doc.getObject("XY_Plane"), [""])
sketch9.MapMode = "FlatFace"
sketch9.AttachmentOffset = App.Placement(App.Vector(0, 0, 1 * 25.4), App.Rotation())
add_polygon(sketch9, [(-5283, -1575), (-5588, -1270), (-5588, -1575)])
add_polygon(sketch9, [(-711, -2604), (-1016, -2299), (-1016, -2604)])
sketch9.addGeometry(Part.Circle(App.Vector(2392, 1570, 0), App.Vector(0, 0, 1), 152), False)
sketch9.addGeometry(Part.Circle(App.Vector(-2748, -1422, 0), App.Vector(0, 0, 1), 152), False)
sketch9.addGeometry(Part.ArcOfCircle(Part.Circle(App.Vector(402, -2451, 0), App.Vector(0, 0, 1), 152), math.radians(180), math.radians(360)), False)
sketch9.addGeometry(Part.LineSegment(App.Vector(554, -2451, 0), App.Vector(554, -2146, 0)), False)
sketch9.addGeometry(Part.LineSegment(App.Vector(554, -2146, 0), App.Vector(250, -2146, 0)), False)
sketch9.addGeometry(Part.LineSegment(App.Vector(250, -2146, 0), App.Vector(250, -2451, 0)), False)
sketch9.addGeometry(Part.ArcOfCircle(Part.Circle(App.Vector(4372, -2451, 0), App.Vector(0, 0, 1), 152), math.radians(180), math.radians(360)), False)
sketch9.addGeometry(Part.LineSegment(App.Vector(4524, -2451, 0), App.Vector(4524, -2146, 0)), False)
sketch9.addGeometry(Part.LineSegment(App.Vector(4524, -2146, 0), App.Vector(4220, -2146, 0)), False)
sketch9.addGeometry(Part.LineSegment(App.Vector(4220, -2146, 0), App.Vector(4220, -2451, 0)), False)
sketch9.addGeometry(Part.Circle(App.Vector(2392, -1520, 0), App.Vector(0, 0, 1), 152), False)
sketch9.addGeometry(Part.Circle(App.Vector(-3098, 1570, 0), App.Vector(0, 0, 1), 152), False)
add_polygon(sketch9, [(2544, -2604), (2240, -2299), (2240, -2604)])
add_polygon(sketch9, [(2544, -1994), (2240, -1994), (2240, -2299), (2544, -2299)])
sketch9.addConstraint(Sketcher.Constraint("Tangent", 8, 2, 9, 1))
sketch9.addConstraint(Sketcher.Constraint("Coincident", 9, 2, 10, 1))
sketch9.addConstraint(Sketcher.Constraint("Coincident", 10, 2, 11, 1))
sketch9.addConstraint(Sketcher.Constraint("Tangent", 11, 2, 8, 1))
sketch9.addConstraint(Sketcher.Constraint("Tangent", 12, 2, 13, 1))
sketch9.addConstraint(Sketcher.Constraint("Coincident", 13, 2, 14, 1))
sketch9.addConstraint(Sketcher.Constraint("Coincident", 14, 2, 15, 1))
sketch9.addConstraint(Sketcher.Constraint("Tangent", 15, 2, 12, 1))
sketch9.addConstraint(Sketcher.Constraint("Vertical", 1))
sketch9.addConstraint(Sketcher.Constraint("Horizontal", 2))
sketch9.addConstraint(Sketcher.Constraint("Vertical", 4))
sketch9.addConstraint(Sketcher.Constraint("Horizontal", 5))
sketch9.addConstraint(Sketcher.Constraint("Vertical", 9))
sketch9.addConstraint(Sketcher.Constraint("Horizontal", 10))
sketch9.addConstraint(Sketcher.Constraint("Vertical", 11))
sketch9.addConstraint(Sketcher.Constraint("Vertical", 13))
sketch9.addConstraint(Sketcher.Constraint("Horizontal", 14))
sketch9.addConstraint(Sketcher.Constraint("Vertical", 15))
sketch9.addConstraint(Sketcher.Constraint("Vertical", 19))
sketch9.addConstraint(Sketcher.Constraint("Horizontal", 20))
sketch9.addConstraint(Sketcher.Constraint("Horizontal", 21))
sketch9.addConstraint(Sketcher.Constraint("Vertical", 22))
sketch9.addConstraint(Sketcher.Constraint("Horizontal", 23))
sketch9.addConstraint(Sketcher.Constraint("Vertical", 24))
sketch9.addConstraint(Sketcher.Constraint("Coincident", 22, 2, 18, 2))
sketch9.addConstraint(Sketcher.Constraint("Equal", 6, 7))
sketch9.addConstraint(Sketcher.Constraint("Equal", 7, 8))
sketch9.addConstraint(Sketcher.Constraint("Equal", 8, 12))
sketch9.addConstraint(Sketcher.Constraint("Equal", 12, 16))
sketch9.addConstraint(Sketcher.Constraint("Equal", 16, 17))
sketch9.addConstraint(Sketcher.Constraint("Parallel", 0, 3))
sketch9.addConstraint(Sketcher.Constraint("Parallel", 3, 18))
sketch9.addConstraint(Sketcher.Constraint("Horizontal", 8, 3, 12, 3))
sketch9.addConstraint(Sketcher.Constraint("Horizontal", 6, 3, 17, 3))
sketch9.addConstraint(Sketcher.Constraint("Horizontal", 10, 2, 13, 2))
sketch9.addConstraint(Sketcher.Constraint("Horizontal", 3, 2, 18, 2))
sketch9.addConstraint(Sketcher.Constraint("Horizontal", 5, 2, 19, 2))
sketch9.addConstraint(Sketcher.Constraint("Vertical", 6, 3, 16, 3))
sketch9.addConstraint(Sketcher.Constraint("Vertical", 20, 2, 23, 2))
sketch9.addConstraint(Sketcher.Constraint("Equal", 2, 5))
sketch9.addConstraint(Sketcher.Constraint("Equal", 5, 10))
sketch9.addConstraint(Sketcher.Constraint("Equal", 23, 1))
sketch9.addConstraint(Sketcher.Constraint("Equal", 4, 9))
sketch9.addConstraint(Sketcher.Constraint("Equal", 19, 22))
sketch9.addConstraint(Sketcher.Constraint("Diameter", 6, Q("12 in")))
sketch9.addConstraint(Sketcher.Constraint("DistanceY", 5, 2, 9, 2, Q("18 in")))
sketch9.addConstraint(Sketcher.Constraint("DistanceY", 7, 3, -1, 1, Q("56 in")))
sketch9.addConstraint(Sketcher.Constraint("DistanceX", 0, 2, -1, 1, Q("220 in")))
sketch9.addConstraint(Sketcher.Constraint("DistanceY", 0, 2, -1, 1, Q("50 in")))
sketch9.addConstraint(Sketcher.Constraint("DistanceX", 3, 2, -1, 1, Q("40 in")))
sketch9.addConstraint(Sketcher.Constraint("DistanceX", 18, 2, 16, 3, Q("6 in")))
sketch9.addConstraint(Sketcher.Constraint("DistanceY", 8, 3, -1, 1, Q("96.5 in")))
sketch9.addConstraint(Sketcher.Constraint("DistanceX", 0, 2, 17, 3, Q("98.0315 in")))
sketch9.addConstraint(Sketcher.Constraint("DistanceX", 0, 2, 7, 3, Q("2840 mm")))
sketch9.addConstraint(Sketcher.Constraint("DistanceX", 0, 2, 8, 3, Q("5990 mm")))
sketch9.addConstraint(Sketcher.Constraint("DistanceX", 0, 2, 16, 3, Q("7980 mm")))
sketch9.addConstraint(Sketcher.Constraint("DistanceX", 17, 3, 12, 3, Q("294.0945 in")))
sketch9.addConstraint(Sketcher.Constraint("DistanceY", -1, 1, 6, 3, Q("1570.4 mm")))
sketch9.addConstraint(Sketcher.Constraint("DistanceY", 16, 3, -1, 1, Q("1519.6 mm")))
pad6 = body.newObject("PartDesign::Pad", "Pad005")
pad6.Profile = sketch9
pad6.Length = Q("1 in")

doc.recompute()
